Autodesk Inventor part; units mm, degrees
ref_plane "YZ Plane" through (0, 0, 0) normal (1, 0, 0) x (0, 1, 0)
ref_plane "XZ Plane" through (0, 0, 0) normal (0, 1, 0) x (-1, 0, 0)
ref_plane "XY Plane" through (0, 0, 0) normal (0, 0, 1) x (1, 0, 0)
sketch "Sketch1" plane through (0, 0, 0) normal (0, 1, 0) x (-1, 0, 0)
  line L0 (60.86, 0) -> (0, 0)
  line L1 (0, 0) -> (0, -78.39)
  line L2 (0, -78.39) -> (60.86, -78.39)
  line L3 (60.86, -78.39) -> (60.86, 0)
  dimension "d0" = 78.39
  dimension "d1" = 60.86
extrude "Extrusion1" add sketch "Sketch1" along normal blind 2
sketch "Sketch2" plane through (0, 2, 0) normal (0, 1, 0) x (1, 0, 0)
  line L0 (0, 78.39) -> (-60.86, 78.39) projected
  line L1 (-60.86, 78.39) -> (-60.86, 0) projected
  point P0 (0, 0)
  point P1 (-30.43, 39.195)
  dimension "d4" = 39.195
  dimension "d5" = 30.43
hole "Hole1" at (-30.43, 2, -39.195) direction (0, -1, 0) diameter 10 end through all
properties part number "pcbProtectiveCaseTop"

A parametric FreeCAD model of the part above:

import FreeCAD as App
import Part
import Sketcher

V = App.Vector

doc = App.newDocument("Part")
body = doc.addObject("PartDesign::Body", "Body")

# Sketch on XZ plane
sketch1 = body.newObject("Sketcher::SketchObject", "Sketch")
sketch1.AttachmentSupport = (doc.getObject("XZ_Plane"), [""])
sketch1.MapMode = "FlatFace"
sketch1.addGeometry([
    Part.LineSegment(V(-61, -78, 0), V(-61, 0, 0)),
    Part.LineSegment(V(-61, 0, 0), V(0, 0, 0)),
    Part.LineSegment(V(0, 0, 0), V(0, -78, 0)),
    Part.LineSegment(V(0, -78, 0), V(-61, -78, 0)),
], False)
sketch1.addConstraint([
    Sketcher.Constraint("Coincident", 0, 2, 1, 1),
    Sketcher.Constraint("Coincident", 1, 2, 2, 1),
    Sketcher.Constraint("Coincident", 2, 2, 3, 1),
    Sketcher.Constraint("Coincident", 3, 2, 0, 1),
    Sketcher.Constraint("Vertical", 0),
    Sketcher.Constraint("Horizontal", 1),
    Sketcher.Constraint("Vertical", 2),
    Sketcher.Constraint("Horizontal", 3),
    Sketcher.Constraint("Coincident", 1, 2, -1, 1),
    Sketcher.Constraint("DistanceX", 1, 1, 1, 2, 60.86),
    Sketcher.Constraint("DistanceY", 0, 1, 0, 2, 78.39),
])
pad1 = body.newObject("PartDesign::Pad", "Pad")
pad1.Profile = sketch1
pad1.Length = 2
pad1.Reversed = True

# Sketch on XZ plane
sketch2 = body.newObject("Sketcher::SketchObject", "Sketch001")
sketch2.AttachmentSupport = (doc.getObject("XZ_Plane"), [""])
sketch2.MapMode = "FlatFace"
sketch2.AttachmentOffset = App.Placement(V(0, 0, -2), App.Rotation())
sketch2.addGeometry(Part.Circle(V(-30, -39, 0), V(0, 0, 1), 5), False)
sketch2.addConstraint([
    Sketcher.Constraint("Diameter", 0, 10.0),
    Sketcher.Constraint("DistanceX", 0, 3, -1, 1, 30.43),
    Sketcher.Constraint("DistanceY", 0, 3, -1, 1, 39.195),
])
doc.recompute()
hole = body.newObject("PartDesign::Hole", "Hole")
hole.Profile = sketch2
hole.ThreadType = "None"
hole.Diameter = 10
hole.DepthType = "ThroughAll"
hole.Reversed = True

doc.recompute()
